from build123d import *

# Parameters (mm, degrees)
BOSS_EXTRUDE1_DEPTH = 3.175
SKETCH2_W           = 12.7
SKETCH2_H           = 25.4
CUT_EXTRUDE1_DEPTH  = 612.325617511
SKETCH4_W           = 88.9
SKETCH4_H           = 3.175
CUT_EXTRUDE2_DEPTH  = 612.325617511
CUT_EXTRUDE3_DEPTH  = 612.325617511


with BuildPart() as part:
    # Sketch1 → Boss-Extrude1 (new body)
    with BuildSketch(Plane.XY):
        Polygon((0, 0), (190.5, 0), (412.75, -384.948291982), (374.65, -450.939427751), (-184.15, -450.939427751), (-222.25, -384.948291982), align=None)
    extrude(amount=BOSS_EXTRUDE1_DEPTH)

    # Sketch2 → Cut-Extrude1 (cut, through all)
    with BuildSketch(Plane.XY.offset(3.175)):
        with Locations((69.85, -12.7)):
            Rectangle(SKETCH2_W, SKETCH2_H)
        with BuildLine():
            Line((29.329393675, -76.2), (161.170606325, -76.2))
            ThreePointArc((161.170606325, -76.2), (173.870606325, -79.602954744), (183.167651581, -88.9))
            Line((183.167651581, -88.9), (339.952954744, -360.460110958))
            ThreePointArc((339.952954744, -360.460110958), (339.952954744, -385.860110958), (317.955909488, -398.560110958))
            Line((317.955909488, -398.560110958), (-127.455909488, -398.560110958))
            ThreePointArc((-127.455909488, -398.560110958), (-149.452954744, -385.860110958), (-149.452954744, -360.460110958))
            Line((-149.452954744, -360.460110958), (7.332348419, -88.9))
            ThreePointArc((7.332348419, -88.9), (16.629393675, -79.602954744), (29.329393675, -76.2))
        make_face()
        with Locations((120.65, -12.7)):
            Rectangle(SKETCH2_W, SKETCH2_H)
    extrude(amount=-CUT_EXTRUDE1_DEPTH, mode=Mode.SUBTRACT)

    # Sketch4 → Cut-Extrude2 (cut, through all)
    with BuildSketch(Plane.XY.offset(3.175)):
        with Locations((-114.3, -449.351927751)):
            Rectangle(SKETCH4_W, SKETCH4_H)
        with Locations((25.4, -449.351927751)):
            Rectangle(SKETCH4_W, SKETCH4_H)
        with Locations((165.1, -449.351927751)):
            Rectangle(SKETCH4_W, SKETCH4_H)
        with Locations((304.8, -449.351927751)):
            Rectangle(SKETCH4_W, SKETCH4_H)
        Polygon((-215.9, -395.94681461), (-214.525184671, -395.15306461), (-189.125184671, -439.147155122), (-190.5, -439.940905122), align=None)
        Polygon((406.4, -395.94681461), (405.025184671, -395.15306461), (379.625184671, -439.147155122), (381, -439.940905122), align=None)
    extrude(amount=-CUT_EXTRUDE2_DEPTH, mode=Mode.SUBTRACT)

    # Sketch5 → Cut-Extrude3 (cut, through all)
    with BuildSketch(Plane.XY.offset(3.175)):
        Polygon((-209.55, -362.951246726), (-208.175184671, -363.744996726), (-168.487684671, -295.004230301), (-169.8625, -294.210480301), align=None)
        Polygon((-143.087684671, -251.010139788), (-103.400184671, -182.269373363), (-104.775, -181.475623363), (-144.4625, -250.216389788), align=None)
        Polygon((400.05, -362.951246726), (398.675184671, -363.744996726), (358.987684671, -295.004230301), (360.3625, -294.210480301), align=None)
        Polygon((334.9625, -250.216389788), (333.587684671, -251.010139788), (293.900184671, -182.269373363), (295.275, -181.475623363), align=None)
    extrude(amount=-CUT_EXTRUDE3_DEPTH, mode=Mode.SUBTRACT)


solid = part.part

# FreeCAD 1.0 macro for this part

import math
import FreeCAD as App
import Part
import Sketcher
from FreeCAD import Vector
Q = App.Units.Quantity

doc = App.newDocument("Part")
body = doc.addObject("PartDesign::Body", "Body")

# Sketch on XY plane
sketch1 = body.newObject("Sketcher::SketchObject", "Sketch")
sketch1.AttachmentSupport = (doc.getObject("XY_Plane"), [""])
sketch1.MapMode = "FlatFace"
sketch1.addGeometry([
    Part.LineSegment(Vector(190, 0, 0), Vector(0, 0, 0)),  # 0
    Part.LineSegment(Vector(0, 0, 0), Vector(-222, -385, 0)),  # 1
    Part.LineSegment(Vector(-222, -385, 0), Vector(-184, -451, 0)),  # 2
    Part.LineSegment(Vector(-184, -451, 0), Vector(375, -451, 0)),  # 3
    Part.LineSegment(Vector(375, -451, 0), Vector(413, -385, 0)),  # 4
    Part.LineSegment(Vector(413, -385, 0), Vector(190, 0, 0)),  # 5
], False)
sketch1.addConstraint([
    Sketcher.Constraint("Coincident", 0, 2, 1, 1),
    Sketcher.Constraint("Coincident", 1, 2, 2, 1),
    Sketcher.Constraint("Coincident", 2, 2, 3, 1),
    Sketcher.Constraint("Coincident", 3, 2, 4, 1),
    Sketcher.Constraint("Coincident", 4, 2, 5, 1),
    Sketcher.Constraint("Coincident", 5, 2, 0, 1),
    Sketcher.Constraint("Horizontal", 0),
    Sketcher.Constraint("Horizontal", 3),
    Sketcher.Constraint("Coincident", 0, 2, -1, 1),
    Sketcher.Constraint("Parallel", 1, 4),
    Sketcher.Constraint("Parallel", 2, 5),
    Sketcher.Constraint("Horizontal", 1, 2, 4, 2),
    Sketcher.Constraint("Equal", 2, 4),
    Sketcher.Constraint("DistanceX", 3, 1, 3, 2, Q("22 in")),
    Sketcher.Constraint("Distance", 2, Q("3 in")),
    Sketcher.Constraint("DistanceX", 0, 2, 0, 1, Q("7.5 in")),
    Sketcher.Constraint("Angle", 1, Q("-120 deg")),
])
pad1 = body.newObject("PartDesign::Pad", "Pad")
pad1.Profile = sketch1
pad1.Length = Q("0.125 in")

# Sketch on XY plane
sketch2 = body.newObject("Sketcher::SketchObject", "Sketch001")
sketch2.AttachmentSupport = (doc.getObject("XY_Plane"), [""])
sketch2.MapMode = "FlatFace"
sketch2.AttachmentOffset = App.Placement(Vector(0, 0, 0.125 * 25.4), App.Rotation())
sketch2.addGeometry([
    Part.LineSegment(Vector(64, 0, 0), Vector(64, -25, 0)),  # 0
    Part.LineSegment(Vector(64, -25, 0), Vector(76, -25, 0)),  # 1
    Part.LineSegment(Vector(76, -25, 0), Vector(76, 0, 0)),  # 2
    Part.LineSegment(Vector(76, 0, 0), Vector(64, 0, 0)),  # 3
    Part.LineSegment(Vector(161, -76, 0), Vector(29, -76, 0)),  # 4
    Part.ArcOfCircle(Part.Circle(Vector(29, -102, 0), Vector(0, 0, 1), 25), math.radians(90), math.radians(150)),  # 5
    Part.LineSegment(Vector(7, -89, 0), Vector(-149, -360, 0)),  # 6
    Part.ArcOfCircle(Part.Circle(Vector(-127, -373, 0), Vector(0, 0, 1), 25), math.radians(150), math.radians(270)),  # 7
    Part.LineSegment(Vector(-127, -399, 0), Vector(318, -399, 0)),  # 8
    Part.ArcOfCircle(Part.Circle(Vector(318, -373, 0), Vector(0, 0, 1), 25), math.radians(-90), math.radians(30)),  # 9
    Part.LineSegment(Vector(340, -360, 0), Vector(183, -89, 0)),  # 10
    Part.ArcOfCircle(Part.Circle(Vector(161, -102, 0), Vector(0, 0, 1), 25), math.radians(30), math.radians(90)),  # 11
    Part.LineSegment(Vector(114, 0, 0), Vector(114, -25, 0)),  # 12
    Part.LineSegment(Vector(114, -25, 0), Vector(127, -25, 0)),  # 13
    Part.LineSegment(Vector(127, -25, 0), Vector(127, 0, 0)),  # 14
    Part.LineSegment(Vector(127, 0, 0), Vector(114, 0, 0)),  # 15
], False)
sketch2.addConstraint([
    Sketcher.Constraint("Coincident", 0, 2, 1, 1),
    Sketcher.Constraint("Coincident", 1, 2, 2, 1),
    Sketcher.Constraint("Coincident", 2, 2, 3, 1),
    Sketcher.Constraint("Coincident", 3, 2, 0, 1),
    Sketcher.Constraint("Tangent", 4, 2, 5, 1),
    Sketcher.Constraint("Tangent", 5, 2, 6, 1),
    Sketcher.Constraint("Tangent", 6, 2, 7, 1),
    Sketcher.Constraint("Tangent", 7, 2, 8, 1),
    Sketcher.Constraint("Tangent", 8, 2, 9, 1),
    Sketcher.Constraint("Tangent", 9, 2, 10, 1),
    Sketcher.Constraint("Tangent", 10, 2, 11, 1),
    Sketcher.Constraint("Tangent", 11, 2, 4, 1),
    Sketcher.Constraint("Coincident", 12, 2, 13, 1),
    Sketcher.Constraint("Coincident", 13, 2, 14, 1),
    Sketcher.Constraint("Coincident", 14, 2, 15, 1),
    Sketcher.Constraint("Coincident", 15, 2, 12, 1),
    Sketcher.Constraint("Vertical", 0),
    Sketcher.Constraint("Horizontal", 1),
    Sketcher.Constraint("Vertical", 2),
    Sketcher.Constraint("Horizontal", 3),
    Sketcher.Constraint("Horizontal", 4),
    Sketcher.Constraint("Horizontal", 8),
    Sketcher.Constraint("Vertical", 12),
    Sketcher.Constraint("Horizontal", 13),
    Sketcher.Constraint("Vertical", 14),
    Sketcher.Constraint("Horizontal", 15),
    Sketcher.Constraint("Equal", 5, 7),
    Sketcher.Constraint("Equal", 7, 9),
    Sketcher.Constraint("Equal", 9, 11),
    Sketcher.Constraint("PointOnObject", 2, 2, -1),
    Sketcher.Constraint("PointOnObject", 14, 2, -1),
    Sketcher.Constraint("Horizontal", 6, 2, 9, 2),
    Sketcher.Constraint("Horizontal", 1, 2, 12, 2),
    Sketcher.Constraint("Equal", 3, 13),
    Sketcher.Constraint("Radius", 5, Q("1 in")),
    Sketcher.Constraint("DistanceY", 0, 2, 0, 1, Q("1 in")),
    Sketcher.Constraint("DistanceX", 1, 1, 1, 2, Q("0.5 in")),
    Sketcher.Constraint("DistanceY", 5, 3, -1, 1, Q("4 in")),
    Sketcher.Constraint("DistanceX", -1, 1, 1, 2, Q("3 in")),
    Sketcher.Constraint("DistanceX", -1, 1, 13, 2, Q("5 in")),
    Sketcher.Constraint("Angle", 6, Q("-120 deg")),
    Sketcher.Constraint("DistanceX", 8, 1, 8, 2, Q("445.411819 mm")),
    Sketcher.Constraint("DistanceX", 4, 2, 4, 1, Q("131.841213 mm")),
    Sketcher.Constraint("DistanceX", 7, 3, -1, 1, Q("127.455909 mm")),
])
pocket1 = body.newObject("PartDesign::Pocket", "Pocket")
pocket1.Profile = sketch2
pocket1.Type = "ThroughAll"

# Sketch on XY plane
sketch3 = body.newObject("Sketcher::SketchObject", "Sketch002")
sketch3.AttachmentSupport = (doc.getObject("XY_Plane"), [""])
sketch3.MapMode = "FlatFace"
sketch3.AttachmentOffset = App.Placement(Vector(0, 0, 0.125 * 25.4), App.Rotation())
sketch3.addGeometry([
    Part.LineSegment(Vector(-158.8, -447.8, 0), Vector(-158.8, -450.9, 0)),  # 0
    Part.LineSegment(Vector(-158.8, -450.9, 0), Vector(-69.8, -450.9, 0)),  # 1
    Part.LineSegment(Vector(-69.8, -450.9, 0), Vector(-69.8, -447.8, 0)),  # 2
    Part.LineSegment(Vector(-69.8, -447.8, 0), Vector(-158.8, -447.8, 0)),  # 3
    Part.LineSegment(Vector(-19.1, -447.8, 0), Vector(-19.1, -450.9, 0)),  # 4
    Part.LineSegment(Vector(-19.1, -450.9, 0), Vector(69.8, -450.9, 0)),  # 5
    Part.LineSegment(Vector(69.8, -450.9, 0), Vector(69.8, -447.8, 0)),  # 6
    Part.LineSegment(Vector(69.8, -447.8, 0), Vector(-19.1, -447.8, 0)),  # 7
    Part.LineSegment(Vector(120.7, -447.8, 0), Vector(120.7, -450.9, 0)),  # 8
    Part.LineSegment(Vector(120.7, -450.9, 0), Vector(209.6, -450.9, 0)),  # 9
    Part.LineSegment(Vector(209.6, -450.9, 0), Vector(209.6, -447.8, 0)),  # 10
    Part.LineSegment(Vector(209.6, -447.8, 0), Vector(120.7, -447.8, 0)),  # 11
    Part.LineSegment(Vector(260.4, -447.8, 0), Vector(260.4, -450.9, 0)),  # 12
    Part.LineSegment(Vector(260.4, -450.9, 0), Vector(349.2, -450.9, 0)),  # 13
    Part.LineSegment(Vector(349.2, -450.9, 0), Vector(349.2, -447.8, 0)),  # 14
    Part.LineSegment(Vector(349.2, -447.8, 0), Vector(260.4, -447.8, 0)),  # 15
    Part.LineSegment(Vector(-214.5, -395.2, 0), Vector(-215.9, -395.9, 0)),  # 16
    Part.LineSegment(Vector(-215.9, -395.9, 0), Vector(-190.5, -439.9, 0)),  # 17
    Part.LineSegment(Vector(-190.5, -439.9, 0), Vector(-189.1, -439.1, 0)),  # 18
    Part.LineSegment(Vector(-189.1, -439.1, 0), Vector(-214.5, -395.2, 0)),  # 19
    Part.LineSegment(Vector(406.4, -395.9, 0), Vector(405, -395.2, 0)),  # 20
    Part.LineSegment(Vector(405, -395.2, 0), Vector(379.6, -439.1, 0)),  # 21
    Part.LineSegment(Vector(379.6, -439.1, 0), Vector(381, -439.9, 0)),  # 22
    Part.LineSegment(Vector(381, -439.9, 0), Vector(406.4, -395.9, 0)),  # 23
], False)
sketch3.addConstraint([
    Sketcher.Constraint("Coincident", 0, 2, 1, 1),
    Sketcher.Constraint("Coincident", 1, 2, 2, 1),
    Sketcher.Constraint("Coincident", 2, 2, 3, 1),
    Sketcher.Constraint("Coincident", 3, 2, 0, 1),
    Sketcher.Constraint("Coincident", 4, 2, 5, 1),
    Sketcher.Constraint("Coincident", 5, 2, 6, 1),
    Sketcher.Constraint("Coincident", 6, 2, 7, 1),
    Sketcher.Constraint("Coincident", 7, 2, 4, 1),
    Sketcher.Constraint("Coincident", 8, 2, 9, 1),
    Sketcher.Constraint("Coincident", 9, 2, 10, 1),
    Sketcher.Constraint("Coincident", 10, 2, 11, 1),
    Sketcher.Constraint("Coincident", 11, 2, 8, 1),
    Sketcher.Constraint("Coincident", 12, 2, 13, 1),
    Sketcher.Constraint("Coincident", 13, 2, 14, 1),
    Sketcher.Constraint("Coincident", 14, 2, 15, 1),
    Sketcher.Constraint("Coincident", 15, 2, 12, 1),
    Sketcher.Constraint("Coincident", 16, 2, 17, 1),
    Sketcher.Constraint("Coincident", 17, 2, 18, 1),
    Sketcher.Constraint("Coincident", 18, 2, 19, 1),
    Sketcher.Constraint("Coincident", 19, 2, 16, 1),
    Sketcher.Constraint("Coincident", 20, 2, 21, 1),
    Sketcher.Constraint("Coincident", 21, 2, 22, 1),
    Sketcher.Constraint("Coincident", 22, 2, 23, 1),
    Sketcher.Constraint("Coincident", 23, 2, 20, 1),
    Sketcher.Constraint("Vertical", 0),
    Sketcher.Constraint("Horizontal", 1),
    Sketcher.Constraint("Vertical", 2),
    Sketcher.Constraint("Horizontal", 3),
    Sketcher.Constraint("Vertical", 4),
    Sketcher.Constraint("Horizontal", 5),
    Sketcher.Constraint("Vertical", 6),
    Sketcher.Constraint("Horizontal", 7),
    Sketcher.Constraint("Vertical", 8),
    Sketcher.Constraint("Horizontal", 9),
    Sketcher.Constraint("Vertical", 10),
    Sketcher.Constraint("Horizontal", 11),
    Sketcher.Constraint("Vertical", 12),
    Sketcher.Constraint("Horizontal", 13),
    Sketcher.Constraint("Vertical", 14),
    Sketcher.Constraint("Horizontal", 15),
    Sketcher.Constraint("Symmetric", 1, 2, 5, 2, -2),
    Sketcher.Constraint("Perpendicular", 16, 17),
    Sketcher.Constraint("Perpendicular", 17, 18),
    Sketcher.Constraint("Perpendicular", 18, 19),
    Sketcher.Constraint("Perpendicular", 20, 21),
    Sketcher.Constraint("Perpendicular", 21, 22),
    Sketcher.Constraint("Perpendicular", 22, 23),
    Sketcher.Constraint("Horizontal", 3, 2, 6, 2),
    Sketcher.Constraint("Horizontal", 5, 2, 8, 2),
    Sketcher.Constraint("Horizontal", 7, 2, 10, 2),
    Sketcher.Constraint("Horizontal", 9, 2, 12, 2),
    Sketcher.Constraint("Horizontal", 11, 2, 14, 2),
    Sketcher.Constraint("Horizontal", 19, 2, 20, 2),
    Sketcher.Constraint("Horizontal", 18, 2, 21, 2),
    Sketcher.Constraint("Horizontal", 17, 2, 22, 2),
    Sketcher.Constraint("Equal", 3, 5),
    Sketcher.Constraint("Equal", 7, 9),
    Sketcher.Constraint("Equal", 11, 13),
    Sketcher.Constraint("Equal", 18, 20),
    Sketcher.Constraint("Distance", 17, Q("2 in")),
    Sketcher.Constraint("DistanceX", 1, 1, 1, 2, Q("3.5 in")),
    Sketcher.Constraint("DistanceX", -1, 1, 22, 2, Q("15 in")),
    Sketcher.Constraint("DistanceX", -1, 1, 23, 2, Q("16 in")),
    Sketcher.Constraint("DistanceX", 1, 2, 4, 2, Q("2 in")),
    Sketcher.Constraint("DistanceX", 5, 2, 8, 2, Q("2 in")),
    Sketcher.Constraint("DistanceX", 9, 2, 12, 2, Q("2 in")),
    Sketcher.Constraint("DistanceX", 16, 2, -1, 1, Q("8.5 in")),
    Sketcher.Constraint("DistanceY", 0, 2, 0, 1, Q("0.125 in")),
    Sketcher.Constraint("Distance", 16, Q("0.0625 in")),
    Sketcher.Constraint("DistanceY", 0, 2, -1, 1, Q("450.939428 mm")),
    Sketcher.Constraint("DistanceY", 16, 2, -1, 1, Q("395.946815 mm")),
])
pocket2 = body.newObject("PartDesign::Pocket", "Pocket001")
pocket2.Profile = sketch3
pocket2.Type = "ThroughAll"

# Sketch on XY plane
sketch4 = body.newObject("Sketcher::SketchObject", "Sketch003")
sketch4.AttachmentSupport = (doc.getObject("XY_Plane"), [""])
sketch4.MapMode = "FlatFace"
sketch4.AttachmentOffset = App.Placement(Vector(0, 0, 0.125 * 25.4), App.Rotation())
sketch4.addGeometry([
    Part.LineSegment(Vector(-209.6, -363, 0), Vector(-208.2, -363.7, 0)),  # 0
    Part.LineSegment(Vector(-208.2, -363.7, 0), Vector(-168.5, -295, 0)),  # 1
    Part.LineSegment(Vector(-168.5, -295, 0), Vector(-169.9, -294.2, 0)),  # 2
    Part.LineSegment(Vector(-169.9, -294.2, 0), Vector(-209.6, -363, 0)),  # 3
    Part.LineSegment(Vector(-143.1, -251, 0), Vector(-103.4, -182.3, 0)),  # 4
    Part.LineSegment(Vector(-103.4, -182.3, 0), Vector(-104.8, -181.5, 0)),  # 5
    Part.LineSegment(Vector(-104.8, -181.5, 0), Vector(-144.5, -250.2, 0)),  # 6
    Part.LineSegment(Vector(-144.5, -250.2, 0), Vector(-143.1, -251, 0)),  # 7
    Part.LineSegment(Vector(398.7, -363.7, 0), Vector(400.1, -363, 0)),  # 8
    Part.LineSegment(Vector(400.1, -363, 0), Vector(360.4, -294.2, 0)),  # 9
    Part.LineSegment(Vector(360.4, -294.2, 0), Vector(359, -295, 0)),  # 10
    Part.LineSegment(Vector(359, -295, 0), Vector(398.7, -363.7, 0)),  # 11
    Part.LineSegment(Vector(333.6, -251, 0), Vector(335, -250.2, 0)),  # 12
    Part.LineSegment(Vector(335, -250.2, 0), Vector(295.3, -181.5, 0)),  # 13
    Part.LineSegment(Vector(295.3, -181.5, 0), Vector(293.9, -182.3, 0)),  # 14
    Part.LineSegment(Vector(293.9, -182.3, 0), Vector(333.6, -251, 0)),  # 15
], False)
sketch4.addConstraint([
    Sketcher.Constraint("Coincident", 0, 2, 1, 1),
    Sketcher.Constraint("Coincident", 1, 2, 2, 1),
    Sketcher.Constraint("Coincident", 2, 2, 3, 1),
    Sketcher.Constraint("Coincident", 3, 2, 0, 1),
    Sketcher.Constraint("Coincident", 4, 2, 5, 1),
    Sketcher.Constraint("Coincident", 5, 2, 6, 1),
    Sketcher.Constraint("Coincident", 6, 2, 7, 1),
    Sketcher.Constraint("Coincident", 7, 2, 4, 1),
    Sketcher.Constraint("Coincident", 8, 2, 9, 1),
    Sketcher.Constraint("Coincident", 9, 2, 10, 1),
    Sketcher.Constraint("Coincident", 10, 2, 11, 1),
    Sketcher.Constraint("Coincident", 11, 2, 8, 1),
    Sketcher.Constraint("Coincident", 12, 2, 13, 1),
    Sketcher.Constraint("Coincident", 13, 2, 14, 1),
    Sketcher.Constraint("Coincident", 14, 2, 15, 1),
    Sketcher.Constraint("Coincident", 15, 2, 12, 1),
    Sketcher.Constraint("Perpendicular", 0, 1),
    Sketcher.Constraint("Perpendicular", 1, 2),
    Sketcher.Constraint("Perpendicular", 2, 3),
    Sketcher.Constraint("Parallel", 3, 4),
    Sketcher.Constraint("Perpendicular", 4, 5),
    Sketcher.Constraint("Perpendicular", 5, 6),
    Sketcher.Constraint("Perpendicular", 6, 7),
    Sketcher.Constraint("Perpendicular", 8, 9),
    Sketcher.Constraint("Perpendicular", 9, 10),
    Sketcher.Constraint("Perpendicular", 10, 11),
    Sketcher.Constraint("Perpendicular", 11, 12),
    Sketcher.Constraint("Perpendicular", 12, 13),
    Sketcher.Constraint("Perpendicular", 13, 14),
    Sketcher.Constraint("Perpendicular", 14, 15),
    Sketcher.Constraint("Horizontal", 3, 2, 8, 2),
    Sketcher.Constraint("Horizontal", 2, 2, 9, 2),
    Sketcher.Constraint("Horizontal", 1, 2, 10, 2),
    Sketcher.Constraint("Horizontal", 6, 2, 12, 2),
    Sketcher.Constraint("Horizontal", 5, 2, 13, 2),
    Sketcher.Constraint("Horizontal", 4, 2, 14, 2),
    Sketcher.Constraint("Equal", 3, 4),
    Sketcher.Constraint("Equal", 2, 5),
    Sketcher.Constraint("Equal", 7, 8),
    Sketcher.Constraint("Angle", 0, Q("-30 deg")),
    Sketcher.Constraint("DistanceX", 2, 2, 6, 2, Q("1 in")),
    Sketcher.Constraint("DistanceX", 12, 2, 9, 2, Q("1 in")),
    Sketcher.Constraint("DistanceX", 3, 2, -1, 1, Q("8.25 in")),
    Sketcher.Constraint("DistanceX", -1, 1, 8, 2, Q("15.75 in")),
    Sketcher.Constraint("Distance", 0, Q("0.0625 in")),
    Sketcher.Constraint("Distance", 1, Q("3.125 in")),
    Sketcher.Constraint("DistanceY", 1, 2, -1, 1, Q("295.00423 mm")),
    Sketcher.Constraint("DistanceY", 6, 2, -1, 1, Q("250.21639 mm")),
])
pocket3 = body.newObject("PartDesign::Pocket", "Pocket002")
pocket3.Profile = sketch4
pocket3.Type = "ThroughAll"

doc.recompute()
